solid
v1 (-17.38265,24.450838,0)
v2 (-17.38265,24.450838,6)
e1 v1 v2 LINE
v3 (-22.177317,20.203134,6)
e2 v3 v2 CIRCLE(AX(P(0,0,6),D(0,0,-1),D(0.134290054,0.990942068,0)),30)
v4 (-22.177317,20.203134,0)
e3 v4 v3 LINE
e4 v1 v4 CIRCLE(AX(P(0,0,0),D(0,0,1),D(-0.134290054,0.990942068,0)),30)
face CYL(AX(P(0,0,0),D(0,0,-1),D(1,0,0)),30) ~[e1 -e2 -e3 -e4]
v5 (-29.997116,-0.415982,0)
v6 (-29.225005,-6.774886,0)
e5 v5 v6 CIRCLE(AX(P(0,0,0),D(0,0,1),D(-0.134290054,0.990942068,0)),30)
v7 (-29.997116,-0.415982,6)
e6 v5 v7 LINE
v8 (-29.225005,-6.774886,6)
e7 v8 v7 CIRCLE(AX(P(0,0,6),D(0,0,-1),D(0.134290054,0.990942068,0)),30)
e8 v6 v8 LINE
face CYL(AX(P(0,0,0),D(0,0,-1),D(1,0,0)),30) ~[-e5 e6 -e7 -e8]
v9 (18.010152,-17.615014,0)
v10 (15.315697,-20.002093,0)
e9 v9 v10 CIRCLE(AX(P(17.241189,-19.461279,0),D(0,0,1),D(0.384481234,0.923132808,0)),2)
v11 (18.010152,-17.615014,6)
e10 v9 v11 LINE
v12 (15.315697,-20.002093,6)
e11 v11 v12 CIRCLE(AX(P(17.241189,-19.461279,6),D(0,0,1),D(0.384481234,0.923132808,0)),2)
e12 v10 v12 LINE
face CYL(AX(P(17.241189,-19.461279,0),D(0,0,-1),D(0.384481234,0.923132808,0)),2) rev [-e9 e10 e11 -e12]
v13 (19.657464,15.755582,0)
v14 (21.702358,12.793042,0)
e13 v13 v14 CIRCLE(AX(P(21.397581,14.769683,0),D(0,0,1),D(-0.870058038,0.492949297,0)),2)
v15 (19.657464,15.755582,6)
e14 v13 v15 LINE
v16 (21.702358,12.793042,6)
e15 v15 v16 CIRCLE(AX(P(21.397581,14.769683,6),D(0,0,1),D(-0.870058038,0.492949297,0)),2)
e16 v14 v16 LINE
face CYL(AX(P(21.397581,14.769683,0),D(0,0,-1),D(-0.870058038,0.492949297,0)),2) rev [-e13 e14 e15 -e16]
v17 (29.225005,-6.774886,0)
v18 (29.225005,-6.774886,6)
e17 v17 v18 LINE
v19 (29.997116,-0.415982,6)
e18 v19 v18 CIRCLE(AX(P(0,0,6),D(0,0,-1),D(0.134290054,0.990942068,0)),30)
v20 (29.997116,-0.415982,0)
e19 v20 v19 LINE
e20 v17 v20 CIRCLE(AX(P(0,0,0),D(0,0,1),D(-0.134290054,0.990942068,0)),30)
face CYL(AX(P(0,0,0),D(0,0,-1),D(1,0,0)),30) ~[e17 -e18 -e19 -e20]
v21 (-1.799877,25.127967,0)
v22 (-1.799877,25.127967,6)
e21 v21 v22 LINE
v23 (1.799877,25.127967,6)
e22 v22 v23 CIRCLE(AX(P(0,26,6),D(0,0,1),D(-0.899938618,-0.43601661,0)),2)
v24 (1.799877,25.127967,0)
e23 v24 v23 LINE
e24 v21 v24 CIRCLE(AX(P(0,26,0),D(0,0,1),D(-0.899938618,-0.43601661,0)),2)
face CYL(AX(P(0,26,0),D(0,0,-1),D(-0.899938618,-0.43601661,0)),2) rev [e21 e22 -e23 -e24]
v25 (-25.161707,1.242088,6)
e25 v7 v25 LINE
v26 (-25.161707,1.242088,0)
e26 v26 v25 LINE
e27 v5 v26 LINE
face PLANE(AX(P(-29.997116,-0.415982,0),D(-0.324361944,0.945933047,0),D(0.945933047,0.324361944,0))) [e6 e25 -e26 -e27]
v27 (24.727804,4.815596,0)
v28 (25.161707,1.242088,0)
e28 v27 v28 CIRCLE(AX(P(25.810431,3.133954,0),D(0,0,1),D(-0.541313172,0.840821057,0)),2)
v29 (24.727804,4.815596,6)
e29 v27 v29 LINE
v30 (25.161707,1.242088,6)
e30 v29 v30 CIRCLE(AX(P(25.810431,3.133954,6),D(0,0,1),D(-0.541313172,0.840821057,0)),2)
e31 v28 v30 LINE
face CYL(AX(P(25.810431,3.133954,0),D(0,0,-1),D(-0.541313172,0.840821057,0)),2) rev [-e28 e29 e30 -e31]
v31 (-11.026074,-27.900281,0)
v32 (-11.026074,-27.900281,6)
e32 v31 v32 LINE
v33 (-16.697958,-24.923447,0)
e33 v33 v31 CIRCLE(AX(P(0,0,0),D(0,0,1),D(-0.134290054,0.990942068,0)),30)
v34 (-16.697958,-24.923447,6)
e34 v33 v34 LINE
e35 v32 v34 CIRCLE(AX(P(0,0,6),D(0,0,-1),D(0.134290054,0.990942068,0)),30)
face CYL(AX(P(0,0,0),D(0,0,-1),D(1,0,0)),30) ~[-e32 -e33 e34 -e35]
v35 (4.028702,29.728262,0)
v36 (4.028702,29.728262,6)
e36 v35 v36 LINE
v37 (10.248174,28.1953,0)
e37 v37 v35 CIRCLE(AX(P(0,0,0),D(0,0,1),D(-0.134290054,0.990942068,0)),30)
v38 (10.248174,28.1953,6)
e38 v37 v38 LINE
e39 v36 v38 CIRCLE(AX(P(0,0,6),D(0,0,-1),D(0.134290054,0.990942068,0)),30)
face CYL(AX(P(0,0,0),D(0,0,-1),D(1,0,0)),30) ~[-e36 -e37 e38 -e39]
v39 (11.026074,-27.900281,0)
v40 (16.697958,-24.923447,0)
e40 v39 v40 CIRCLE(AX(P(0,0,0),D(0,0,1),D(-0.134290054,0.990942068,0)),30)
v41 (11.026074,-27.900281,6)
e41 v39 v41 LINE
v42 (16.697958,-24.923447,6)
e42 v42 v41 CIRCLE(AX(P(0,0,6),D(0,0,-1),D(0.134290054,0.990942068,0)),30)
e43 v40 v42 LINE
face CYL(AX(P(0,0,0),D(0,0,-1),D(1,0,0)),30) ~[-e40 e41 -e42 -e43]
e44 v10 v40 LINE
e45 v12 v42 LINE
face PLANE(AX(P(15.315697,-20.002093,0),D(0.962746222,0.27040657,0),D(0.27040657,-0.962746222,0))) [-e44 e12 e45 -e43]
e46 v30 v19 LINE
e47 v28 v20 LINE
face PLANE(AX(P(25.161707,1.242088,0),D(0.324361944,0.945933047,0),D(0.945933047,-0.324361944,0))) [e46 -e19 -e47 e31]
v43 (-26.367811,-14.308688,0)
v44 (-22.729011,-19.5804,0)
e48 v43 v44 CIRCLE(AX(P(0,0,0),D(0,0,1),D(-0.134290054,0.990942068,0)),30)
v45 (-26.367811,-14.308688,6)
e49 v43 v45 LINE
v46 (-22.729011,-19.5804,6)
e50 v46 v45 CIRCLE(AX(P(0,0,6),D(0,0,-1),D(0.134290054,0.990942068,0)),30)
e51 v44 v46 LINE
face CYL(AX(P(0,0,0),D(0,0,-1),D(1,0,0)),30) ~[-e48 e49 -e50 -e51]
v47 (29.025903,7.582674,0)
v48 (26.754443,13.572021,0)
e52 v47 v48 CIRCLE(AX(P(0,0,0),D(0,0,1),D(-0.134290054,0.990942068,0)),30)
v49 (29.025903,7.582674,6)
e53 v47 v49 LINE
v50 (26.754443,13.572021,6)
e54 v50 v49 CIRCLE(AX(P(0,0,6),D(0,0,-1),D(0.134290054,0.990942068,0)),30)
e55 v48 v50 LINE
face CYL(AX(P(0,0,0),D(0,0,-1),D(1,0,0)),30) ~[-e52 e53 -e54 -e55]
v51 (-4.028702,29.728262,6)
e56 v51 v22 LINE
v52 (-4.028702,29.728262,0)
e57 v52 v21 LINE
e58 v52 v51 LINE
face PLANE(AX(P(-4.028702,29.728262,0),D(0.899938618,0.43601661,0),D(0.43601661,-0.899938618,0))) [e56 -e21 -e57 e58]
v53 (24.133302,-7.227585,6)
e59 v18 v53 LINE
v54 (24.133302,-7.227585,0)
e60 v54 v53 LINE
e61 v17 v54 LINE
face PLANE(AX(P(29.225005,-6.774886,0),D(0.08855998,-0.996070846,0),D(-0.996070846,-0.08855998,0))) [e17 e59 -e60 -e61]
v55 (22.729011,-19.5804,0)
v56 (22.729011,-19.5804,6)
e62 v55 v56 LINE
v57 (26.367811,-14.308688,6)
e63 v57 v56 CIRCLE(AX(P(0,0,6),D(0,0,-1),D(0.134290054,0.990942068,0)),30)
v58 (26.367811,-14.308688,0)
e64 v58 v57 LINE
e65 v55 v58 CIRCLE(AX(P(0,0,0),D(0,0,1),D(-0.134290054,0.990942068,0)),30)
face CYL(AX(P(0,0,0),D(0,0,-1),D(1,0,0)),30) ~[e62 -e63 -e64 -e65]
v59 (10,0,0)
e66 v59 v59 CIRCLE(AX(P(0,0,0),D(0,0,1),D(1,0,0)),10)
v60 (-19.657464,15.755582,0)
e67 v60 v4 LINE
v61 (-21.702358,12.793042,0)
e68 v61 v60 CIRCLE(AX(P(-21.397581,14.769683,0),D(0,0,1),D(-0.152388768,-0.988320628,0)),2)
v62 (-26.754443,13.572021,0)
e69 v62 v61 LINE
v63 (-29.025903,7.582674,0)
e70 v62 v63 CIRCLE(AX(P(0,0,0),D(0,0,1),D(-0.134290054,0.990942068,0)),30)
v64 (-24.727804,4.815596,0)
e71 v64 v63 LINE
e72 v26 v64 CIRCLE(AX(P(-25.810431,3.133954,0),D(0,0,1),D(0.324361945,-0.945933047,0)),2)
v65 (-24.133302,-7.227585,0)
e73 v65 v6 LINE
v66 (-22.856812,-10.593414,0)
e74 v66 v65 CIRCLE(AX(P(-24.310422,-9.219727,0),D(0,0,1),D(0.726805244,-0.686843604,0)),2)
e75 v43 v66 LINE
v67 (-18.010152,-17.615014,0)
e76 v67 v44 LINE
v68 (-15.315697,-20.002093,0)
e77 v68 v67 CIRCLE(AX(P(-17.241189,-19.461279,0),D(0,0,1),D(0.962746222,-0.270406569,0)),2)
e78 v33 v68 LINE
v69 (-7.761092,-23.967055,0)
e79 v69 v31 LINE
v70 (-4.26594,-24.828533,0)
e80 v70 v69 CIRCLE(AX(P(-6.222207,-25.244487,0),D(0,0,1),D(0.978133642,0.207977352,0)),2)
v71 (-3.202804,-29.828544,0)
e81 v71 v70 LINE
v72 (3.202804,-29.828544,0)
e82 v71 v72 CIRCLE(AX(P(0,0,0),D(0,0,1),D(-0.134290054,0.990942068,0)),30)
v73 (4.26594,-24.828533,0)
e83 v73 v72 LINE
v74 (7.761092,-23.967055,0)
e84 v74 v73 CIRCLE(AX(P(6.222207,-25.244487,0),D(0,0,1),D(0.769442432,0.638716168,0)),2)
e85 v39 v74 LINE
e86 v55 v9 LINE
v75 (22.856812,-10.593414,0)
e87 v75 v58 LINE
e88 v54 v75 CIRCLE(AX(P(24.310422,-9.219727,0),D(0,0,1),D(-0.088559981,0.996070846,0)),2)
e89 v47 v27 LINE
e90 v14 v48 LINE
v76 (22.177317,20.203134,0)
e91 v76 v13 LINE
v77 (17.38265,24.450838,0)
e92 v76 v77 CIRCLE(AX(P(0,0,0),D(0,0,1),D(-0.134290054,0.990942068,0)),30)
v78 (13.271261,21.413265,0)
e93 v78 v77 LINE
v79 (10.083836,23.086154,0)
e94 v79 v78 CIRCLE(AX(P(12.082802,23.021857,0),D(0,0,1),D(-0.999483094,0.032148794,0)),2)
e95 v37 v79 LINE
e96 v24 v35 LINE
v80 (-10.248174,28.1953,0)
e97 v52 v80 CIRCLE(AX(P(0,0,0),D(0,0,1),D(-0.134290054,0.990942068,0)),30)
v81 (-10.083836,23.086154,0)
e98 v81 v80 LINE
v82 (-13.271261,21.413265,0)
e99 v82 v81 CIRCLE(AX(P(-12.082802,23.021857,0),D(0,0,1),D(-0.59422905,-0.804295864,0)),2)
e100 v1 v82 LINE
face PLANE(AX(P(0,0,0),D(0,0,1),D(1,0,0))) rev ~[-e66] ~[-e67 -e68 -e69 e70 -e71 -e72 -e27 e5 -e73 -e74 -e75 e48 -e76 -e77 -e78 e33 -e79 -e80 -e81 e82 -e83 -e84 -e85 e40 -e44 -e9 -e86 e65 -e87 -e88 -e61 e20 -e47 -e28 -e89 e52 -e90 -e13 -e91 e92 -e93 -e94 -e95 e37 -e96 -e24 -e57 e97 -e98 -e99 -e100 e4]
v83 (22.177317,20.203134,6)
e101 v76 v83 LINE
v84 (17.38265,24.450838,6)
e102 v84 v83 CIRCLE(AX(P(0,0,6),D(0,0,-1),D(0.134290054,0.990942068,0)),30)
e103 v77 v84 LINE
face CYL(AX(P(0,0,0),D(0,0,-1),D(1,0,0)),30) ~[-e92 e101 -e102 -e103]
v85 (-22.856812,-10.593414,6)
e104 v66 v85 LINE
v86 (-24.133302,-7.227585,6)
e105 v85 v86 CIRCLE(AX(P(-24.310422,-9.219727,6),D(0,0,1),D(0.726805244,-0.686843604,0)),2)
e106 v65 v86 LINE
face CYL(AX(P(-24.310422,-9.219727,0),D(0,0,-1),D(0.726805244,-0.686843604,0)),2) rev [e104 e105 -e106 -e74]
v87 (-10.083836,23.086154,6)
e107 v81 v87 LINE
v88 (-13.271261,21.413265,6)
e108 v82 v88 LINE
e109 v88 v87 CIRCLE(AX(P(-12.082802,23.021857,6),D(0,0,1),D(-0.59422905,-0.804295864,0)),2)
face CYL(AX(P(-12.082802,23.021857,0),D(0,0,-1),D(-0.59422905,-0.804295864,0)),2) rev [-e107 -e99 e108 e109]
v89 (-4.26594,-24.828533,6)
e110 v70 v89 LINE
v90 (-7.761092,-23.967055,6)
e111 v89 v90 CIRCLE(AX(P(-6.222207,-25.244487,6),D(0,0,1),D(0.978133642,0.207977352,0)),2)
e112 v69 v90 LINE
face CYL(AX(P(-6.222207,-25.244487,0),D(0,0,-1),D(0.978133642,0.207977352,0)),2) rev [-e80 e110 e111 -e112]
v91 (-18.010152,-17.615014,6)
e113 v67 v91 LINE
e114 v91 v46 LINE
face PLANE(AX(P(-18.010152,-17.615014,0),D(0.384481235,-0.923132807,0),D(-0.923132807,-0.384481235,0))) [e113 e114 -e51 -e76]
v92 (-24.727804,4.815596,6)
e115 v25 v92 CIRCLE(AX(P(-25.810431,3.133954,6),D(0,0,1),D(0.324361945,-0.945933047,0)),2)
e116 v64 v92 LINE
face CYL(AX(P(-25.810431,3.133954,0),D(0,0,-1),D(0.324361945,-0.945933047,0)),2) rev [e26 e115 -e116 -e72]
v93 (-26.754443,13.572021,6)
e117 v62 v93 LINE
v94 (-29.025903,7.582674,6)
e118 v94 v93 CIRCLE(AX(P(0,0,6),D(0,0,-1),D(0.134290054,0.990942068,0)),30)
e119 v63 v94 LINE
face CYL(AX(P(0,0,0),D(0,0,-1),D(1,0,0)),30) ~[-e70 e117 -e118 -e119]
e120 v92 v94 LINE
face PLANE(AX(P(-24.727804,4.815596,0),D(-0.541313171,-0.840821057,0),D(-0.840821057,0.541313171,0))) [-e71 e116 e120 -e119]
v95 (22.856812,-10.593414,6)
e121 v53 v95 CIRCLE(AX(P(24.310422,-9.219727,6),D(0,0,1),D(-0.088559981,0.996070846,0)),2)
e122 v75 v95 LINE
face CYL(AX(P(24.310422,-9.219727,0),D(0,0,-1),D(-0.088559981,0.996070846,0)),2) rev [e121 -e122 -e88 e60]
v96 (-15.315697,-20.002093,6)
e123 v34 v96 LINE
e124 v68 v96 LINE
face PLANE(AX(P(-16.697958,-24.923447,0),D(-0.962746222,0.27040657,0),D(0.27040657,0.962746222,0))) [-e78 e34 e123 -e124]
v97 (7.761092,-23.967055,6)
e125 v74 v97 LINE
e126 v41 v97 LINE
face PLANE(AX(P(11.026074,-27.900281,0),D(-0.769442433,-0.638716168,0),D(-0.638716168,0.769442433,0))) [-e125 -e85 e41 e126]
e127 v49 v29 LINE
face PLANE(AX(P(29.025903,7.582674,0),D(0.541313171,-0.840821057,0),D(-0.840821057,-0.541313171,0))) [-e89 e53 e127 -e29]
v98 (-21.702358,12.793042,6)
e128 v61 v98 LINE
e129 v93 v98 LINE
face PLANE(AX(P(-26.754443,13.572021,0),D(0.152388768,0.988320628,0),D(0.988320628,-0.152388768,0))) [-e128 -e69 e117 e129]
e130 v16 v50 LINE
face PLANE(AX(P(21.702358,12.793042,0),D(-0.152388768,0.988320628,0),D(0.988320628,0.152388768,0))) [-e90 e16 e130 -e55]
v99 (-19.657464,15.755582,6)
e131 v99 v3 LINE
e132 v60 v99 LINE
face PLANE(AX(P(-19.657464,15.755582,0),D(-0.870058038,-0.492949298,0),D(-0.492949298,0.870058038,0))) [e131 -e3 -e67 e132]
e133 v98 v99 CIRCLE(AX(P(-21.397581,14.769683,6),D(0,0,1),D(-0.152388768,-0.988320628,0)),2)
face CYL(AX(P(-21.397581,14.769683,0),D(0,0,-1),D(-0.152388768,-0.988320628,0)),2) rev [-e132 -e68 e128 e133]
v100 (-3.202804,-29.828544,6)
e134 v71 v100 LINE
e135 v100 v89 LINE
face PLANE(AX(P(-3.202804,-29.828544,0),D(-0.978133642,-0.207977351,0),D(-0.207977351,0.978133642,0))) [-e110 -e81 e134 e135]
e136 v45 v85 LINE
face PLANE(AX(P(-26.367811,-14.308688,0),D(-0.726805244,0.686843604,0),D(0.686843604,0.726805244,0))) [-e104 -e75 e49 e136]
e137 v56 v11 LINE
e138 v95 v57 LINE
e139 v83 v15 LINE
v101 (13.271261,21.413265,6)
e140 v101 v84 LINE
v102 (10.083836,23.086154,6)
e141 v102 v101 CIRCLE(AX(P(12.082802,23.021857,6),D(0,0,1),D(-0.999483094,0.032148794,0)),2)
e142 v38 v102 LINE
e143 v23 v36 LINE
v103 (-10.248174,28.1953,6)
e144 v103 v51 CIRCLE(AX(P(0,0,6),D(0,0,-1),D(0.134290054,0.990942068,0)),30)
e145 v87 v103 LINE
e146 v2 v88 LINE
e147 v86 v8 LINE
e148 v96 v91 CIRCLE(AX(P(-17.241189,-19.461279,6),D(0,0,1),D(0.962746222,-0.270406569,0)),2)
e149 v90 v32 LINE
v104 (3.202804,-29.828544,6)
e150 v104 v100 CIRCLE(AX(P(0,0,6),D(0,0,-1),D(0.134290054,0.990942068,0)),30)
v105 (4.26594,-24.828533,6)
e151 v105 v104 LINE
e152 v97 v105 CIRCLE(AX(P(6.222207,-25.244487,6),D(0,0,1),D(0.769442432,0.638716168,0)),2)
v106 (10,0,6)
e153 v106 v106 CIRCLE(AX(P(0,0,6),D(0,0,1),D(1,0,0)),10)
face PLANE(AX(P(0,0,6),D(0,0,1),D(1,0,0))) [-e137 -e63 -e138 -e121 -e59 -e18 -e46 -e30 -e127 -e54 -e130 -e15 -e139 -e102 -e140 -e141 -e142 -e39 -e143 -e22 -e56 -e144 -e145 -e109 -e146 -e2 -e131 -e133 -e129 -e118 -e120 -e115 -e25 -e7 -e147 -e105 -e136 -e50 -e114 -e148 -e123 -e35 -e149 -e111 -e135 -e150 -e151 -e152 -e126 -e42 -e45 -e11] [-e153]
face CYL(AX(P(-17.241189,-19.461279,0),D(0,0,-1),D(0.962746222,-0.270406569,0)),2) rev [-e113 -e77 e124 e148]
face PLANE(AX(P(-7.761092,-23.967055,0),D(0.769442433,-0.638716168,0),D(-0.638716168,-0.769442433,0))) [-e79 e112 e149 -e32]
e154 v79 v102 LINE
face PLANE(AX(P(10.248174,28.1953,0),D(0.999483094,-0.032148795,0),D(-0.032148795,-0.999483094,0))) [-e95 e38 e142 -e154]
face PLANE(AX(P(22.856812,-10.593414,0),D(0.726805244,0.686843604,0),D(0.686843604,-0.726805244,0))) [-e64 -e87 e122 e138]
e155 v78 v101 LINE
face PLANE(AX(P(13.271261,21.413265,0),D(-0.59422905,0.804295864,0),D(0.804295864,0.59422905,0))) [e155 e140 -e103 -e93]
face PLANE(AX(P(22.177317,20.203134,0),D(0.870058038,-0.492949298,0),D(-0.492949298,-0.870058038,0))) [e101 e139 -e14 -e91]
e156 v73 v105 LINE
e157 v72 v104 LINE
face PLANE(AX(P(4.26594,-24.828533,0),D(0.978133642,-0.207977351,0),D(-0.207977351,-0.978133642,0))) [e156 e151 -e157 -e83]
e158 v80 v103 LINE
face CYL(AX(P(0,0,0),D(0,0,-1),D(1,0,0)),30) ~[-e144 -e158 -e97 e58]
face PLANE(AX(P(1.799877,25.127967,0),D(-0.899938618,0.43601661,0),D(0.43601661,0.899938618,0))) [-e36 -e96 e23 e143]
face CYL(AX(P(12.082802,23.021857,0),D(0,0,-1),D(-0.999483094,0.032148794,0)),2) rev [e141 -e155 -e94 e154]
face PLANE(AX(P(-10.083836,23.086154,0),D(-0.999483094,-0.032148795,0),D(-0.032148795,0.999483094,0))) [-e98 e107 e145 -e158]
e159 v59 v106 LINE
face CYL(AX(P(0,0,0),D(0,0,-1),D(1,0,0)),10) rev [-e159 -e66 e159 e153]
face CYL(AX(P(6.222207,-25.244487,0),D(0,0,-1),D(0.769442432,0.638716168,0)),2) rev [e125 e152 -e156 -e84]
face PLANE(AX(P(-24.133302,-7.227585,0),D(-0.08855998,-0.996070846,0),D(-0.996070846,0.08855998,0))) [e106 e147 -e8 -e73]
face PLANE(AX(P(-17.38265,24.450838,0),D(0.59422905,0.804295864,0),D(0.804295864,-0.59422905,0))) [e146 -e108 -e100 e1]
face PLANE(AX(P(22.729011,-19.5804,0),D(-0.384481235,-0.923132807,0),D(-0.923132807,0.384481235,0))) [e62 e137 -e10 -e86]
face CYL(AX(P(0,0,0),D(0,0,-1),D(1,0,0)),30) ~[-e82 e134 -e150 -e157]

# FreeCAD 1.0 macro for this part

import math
import FreeCAD as App
import Part
import Sketcher
from FreeCAD import Vector
Q = App.Units.Quantity

doc = App.newDocument("Part")
body = doc.addObject("PartDesign::Body", "Body")

# Sketch on XY plane
sketch1 = body.newObject("Sketcher::SketchObject", "Sketch")
sketch1.AttachmentSupport = (doc.getObject("XY_Plane"), [""])
sketch1.MapMode = "FlatFace"
sketch1.addGeometry(Part.Circle(Vector(0, 0, 0), Vector(0, 0, 1), 30), False)
sketch1.addGeometry(Part.Circle(Vector(0, 0, 0), Vector(0, 0, 1), 10), False)
sketch1.addConstraint(Sketcher.Constraint("Coincident", 0, 3, -1, 1))
sketch1.addConstraint(Sketcher.Constraint("Coincident", 1, 3, -1, 1))
sketch1.addConstraint(Sketcher.Constraint("Diameter", 0, 60.0))
sketch1.addConstraint(Sketcher.Constraint("Diameter", 1, 20.0))
pad1 = body.newObject("PartDesign::Pad", "Pad")
pad1.Profile = sketch1
pad1.Length = 6

# Sketch on XY plane
sketch2 = body.newObject("Sketcher::SketchObject", "Sketch001")
sketch2.AttachmentSupport = (doc.getObject("XY_Plane"), [""])
sketch2.MapMode = "FlatFace"
sketch2.addGeometry(Part.LineSegment(Vector(-4, 29.7, 0), Vector(-1.8, 25.1, 0)), False)
sketch2.addGeometry(Part.ArcOfCircle(Part.Circle(Vector(0, 26, 0), Vector(0, 0, 1), 2), math.radians(-154), math.radians(-26)), False)
sketch2.addGeometry(Part.LineSegment(Vector(1.8, 25.1, 0), Vector(4, 29.7, 0)), False)
sketch2.addGeometry(Part.ArcOfCircle(Part.Circle(Vector(0, 0, 0), Vector(0, 0, 1), 30), math.radians(82.28), math.radians(97.72)), False)
sketch2.addConstraint(Sketcher.Constraint("Tangent", 0, 2, 1, 1))
sketch2.addConstraint(Sketcher.Constraint("Tangent", 1, 2, 2, 1))
sketch2.addConstraint(Sketcher.Constraint("Coincident", 2, 2, 3, 1))
sketch2.addConstraint(Sketcher.Constraint("Coincident", 3, 2, 0, 1))
sketch2.addConstraint(Sketcher.Constraint("Coincident", 3, 3, -1, 1))
sketch2.addConstraint(Sketcher.Constraint("Symmetric", 0, 2, 1, 2, -2))
sketch2.addConstraint(Sketcher.Constraint("Radius", 1, 2.0))
sketch2.addConstraint(Sketcher.Constraint("Radius", 3, 30.0))
sketch2.addConstraint(Sketcher.Constraint("DistanceY", -1, 1, 1, 3, 26.0))
sketch2.addConstraint(Sketcher.Constraint("Angle", 0, Q("-64.15 deg")))
pocket1 = body.newObject("PartDesign::Pocket", "Pocket")
pocket1.Profile = sketch2
pocket1.Length = 6
pocket1.Reversed = True
doc.recompute()

polarpattern = body.newObject("PartDesign::PolarPattern", "PolarPattern")
polarpattern.Originals = [pocket1]
polarpattern.Axis = (doc.getObject("Z_Axis"), [""])
polarpattern.Angle = 360
polarpattern.Occurrences = 13
body.Tip = polarpattern

doc.recompute()
